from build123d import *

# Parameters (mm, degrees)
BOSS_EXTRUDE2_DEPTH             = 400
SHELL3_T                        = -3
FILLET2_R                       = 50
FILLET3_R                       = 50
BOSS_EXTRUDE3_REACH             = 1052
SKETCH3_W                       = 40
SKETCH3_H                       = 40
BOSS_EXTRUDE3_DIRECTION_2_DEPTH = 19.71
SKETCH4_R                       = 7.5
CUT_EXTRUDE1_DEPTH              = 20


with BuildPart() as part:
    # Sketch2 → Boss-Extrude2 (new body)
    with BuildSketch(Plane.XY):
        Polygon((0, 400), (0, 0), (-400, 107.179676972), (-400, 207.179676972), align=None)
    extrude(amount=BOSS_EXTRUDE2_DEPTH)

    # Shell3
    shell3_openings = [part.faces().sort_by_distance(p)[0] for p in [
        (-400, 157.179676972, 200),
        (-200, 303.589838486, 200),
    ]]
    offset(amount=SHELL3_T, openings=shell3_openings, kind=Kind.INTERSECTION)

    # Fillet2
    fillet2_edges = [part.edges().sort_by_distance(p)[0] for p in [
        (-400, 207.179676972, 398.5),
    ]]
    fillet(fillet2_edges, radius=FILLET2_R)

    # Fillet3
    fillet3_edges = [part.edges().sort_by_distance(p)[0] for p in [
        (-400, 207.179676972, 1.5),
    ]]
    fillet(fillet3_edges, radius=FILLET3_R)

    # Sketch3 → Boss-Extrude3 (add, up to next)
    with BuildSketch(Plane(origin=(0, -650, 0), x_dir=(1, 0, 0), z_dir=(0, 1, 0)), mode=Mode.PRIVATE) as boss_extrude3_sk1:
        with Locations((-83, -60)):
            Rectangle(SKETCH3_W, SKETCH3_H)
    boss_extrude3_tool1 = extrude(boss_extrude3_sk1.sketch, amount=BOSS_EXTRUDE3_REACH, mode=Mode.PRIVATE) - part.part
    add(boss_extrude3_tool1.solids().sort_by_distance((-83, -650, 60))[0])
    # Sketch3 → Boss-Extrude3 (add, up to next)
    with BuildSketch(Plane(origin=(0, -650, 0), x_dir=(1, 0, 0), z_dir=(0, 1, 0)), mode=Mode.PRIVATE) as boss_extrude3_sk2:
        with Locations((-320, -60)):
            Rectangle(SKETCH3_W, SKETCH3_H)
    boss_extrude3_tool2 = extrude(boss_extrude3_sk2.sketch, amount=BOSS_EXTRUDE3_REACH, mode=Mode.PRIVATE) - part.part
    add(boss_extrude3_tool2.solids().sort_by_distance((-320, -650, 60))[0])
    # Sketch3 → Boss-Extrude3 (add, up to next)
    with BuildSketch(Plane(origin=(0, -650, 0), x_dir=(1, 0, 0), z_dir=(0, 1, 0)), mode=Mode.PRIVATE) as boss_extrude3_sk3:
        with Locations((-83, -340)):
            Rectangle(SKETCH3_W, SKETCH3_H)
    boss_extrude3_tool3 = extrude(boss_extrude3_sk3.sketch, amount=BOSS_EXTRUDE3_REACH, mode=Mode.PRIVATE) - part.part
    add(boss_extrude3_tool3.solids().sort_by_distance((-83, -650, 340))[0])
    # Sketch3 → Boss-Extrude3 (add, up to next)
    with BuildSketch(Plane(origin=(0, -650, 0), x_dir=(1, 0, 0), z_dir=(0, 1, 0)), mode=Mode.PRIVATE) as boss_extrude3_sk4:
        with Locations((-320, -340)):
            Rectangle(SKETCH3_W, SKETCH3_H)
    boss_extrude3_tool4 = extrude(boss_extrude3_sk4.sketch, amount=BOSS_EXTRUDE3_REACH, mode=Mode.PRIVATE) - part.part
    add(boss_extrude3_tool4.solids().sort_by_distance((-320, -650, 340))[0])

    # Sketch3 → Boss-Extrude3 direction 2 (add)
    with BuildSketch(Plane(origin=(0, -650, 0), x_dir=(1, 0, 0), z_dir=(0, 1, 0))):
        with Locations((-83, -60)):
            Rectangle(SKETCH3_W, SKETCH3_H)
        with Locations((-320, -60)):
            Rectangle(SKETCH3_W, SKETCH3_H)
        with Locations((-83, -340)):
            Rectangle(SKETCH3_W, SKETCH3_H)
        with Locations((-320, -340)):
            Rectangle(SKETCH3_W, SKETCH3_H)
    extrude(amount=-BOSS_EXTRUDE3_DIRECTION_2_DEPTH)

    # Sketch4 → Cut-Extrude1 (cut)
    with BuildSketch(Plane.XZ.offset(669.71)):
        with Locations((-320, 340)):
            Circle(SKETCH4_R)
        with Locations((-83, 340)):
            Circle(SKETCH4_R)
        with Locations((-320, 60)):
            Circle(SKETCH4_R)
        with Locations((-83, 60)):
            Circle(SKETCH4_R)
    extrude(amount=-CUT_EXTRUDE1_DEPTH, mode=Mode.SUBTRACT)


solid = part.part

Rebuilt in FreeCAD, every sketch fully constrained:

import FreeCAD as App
import Part
import Sketcher
Q = App.Units.Quantity


def edges_at(feature, points):
    """Names of the edges that pass closest to the given points."""
    edges = feature.Shape.Edges
    near = lambda p: min(range(len(edges)), key=lambda i: edges[i].distToShape(Part.Vertex(*p))[0])
    return sorted({f"Edge{near(p) + 1}" for p in points})


def faces_at(feature, points):
    """Names of the faces that lie closest to the given points."""
    faces = feature.Shape.Faces
    near = lambda p: min(range(len(faces)), key=lambda i: faces[i].distToShape(Part.Vertex(*p))[0])
    return sorted({f"Face{near(p) + 1}" for p in points})

doc = App.newDocument("Part")
body = doc.addObject("PartDesign::Body", "Body")

# Sketch on XY plane
sketch1 = body.newObject("Sketcher::SketchObject", "Sketch")
sketch1.AttachmentSupport = (doc.getObject("XY_Plane"), [""])
sketch1.MapMode = "FlatFace"
sketch1.addGeometry([
    Part.LineSegment(App.Vector(0, 0, 0), App.Vector(0, 400, 0)),
    Part.LineSegment(App.Vector(0, 400, 0), App.Vector(-400, 207, 0)),
    Part.LineSegment(App.Vector(-400, 207, 0), App.Vector(-400, 107, 0)),
    Part.LineSegment(App.Vector(-400, 107, 0), App.Vector(0, 0, 0)),
], False)
sketch1.addConstraint([
    Sketcher.Constraint("Coincident", 0, 2, 1, 1),
    Sketcher.Constraint("Coincident", 1, 2, 2, 1),
    Sketcher.Constraint("Coincident", 2, 2, 3, 1),
    Sketcher.Constraint("Coincident", 3, 2, 0, 1),
    Sketcher.Constraint("Vertical", 0),
    Sketcher.Constraint("Vertical", 2),
    Sketcher.Constraint("Coincident", 3, 2, -1, 1),
    Sketcher.Constraint("DistanceY", 0, 1, 0, 2, Q("400 mm")),
    Sketcher.Constraint("DistanceY", 2, 2, 2, 1, Q("100 mm")),
    Sketcher.Constraint("Angle", 3, Q("-15 deg")),
    Sketcher.Constraint("DistanceX", 1, 2, -1, 1, Q("400 mm")),
])
pad1 = body.newObject("PartDesign::Pad", "Pad")
pad1.Profile = sketch1
pad1.Length = 400
doc.recompute()

thickness = body.newObject("PartDesign::Thickness", "Thickness")
thickness.Base = (pad1, faces_at(pad1, [(-400, 157.18, 200), (-200, 303.59, 200)]))
thickness.Value = 3
thickness.Reversed = True
thickness.Join = "Intersection"
doc.recompute()

fillet = body.newObject("PartDesign::Fillet", "Fillet")
fillet.Base = (thickness, edges_at(thickness, [(-400, 207.18, 398.5)]))
fillet.Radius = 50
doc.recompute()

fillet2 = body.newObject("PartDesign::Fillet", "Fillet001")
fillet2.Base = (fillet, edges_at(fillet, [(-400, 207.18, 1.5)]))
fillet2.Radius = 50

# Sketch on XZ plane
sketch2 = body.newObject("Sketcher::SketchObject", "Sketch001")
sketch2.AttachmentSupport = (doc.getObject("XZ_Plane"), [""])
sketch2.MapMode = "FlatFace"
sketch2.AttachmentOffset = App.Placement(App.Vector(0, 0, 650), App.Rotation())
sketch2.addGeometry([
    Part.LineSegment(App.Vector(-103, 40, 0), App.Vector(-103, 80, 0)),
    Part.LineSegment(App.Vector(-103, 80, 0), App.Vector(-63, 80, 0)),
    Part.LineSegment(App.Vector(-63, 80, 0), App.Vector(-63, 40, 0)),
    Part.LineSegment(App.Vector(-63, 40, 0), App.Vector(-103, 40, 0)),
], False)
sketch2.addConstraint([
    Sketcher.Constraint("Coincident", 0, 2, 1, 1),
    Sketcher.Constraint("Coincident", 1, 2, 2, 1),
    Sketcher.Constraint("Coincident", 2, 2, 3, 1),
    Sketcher.Constraint("Coincident", 3, 2, 0, 1),
    Sketcher.Constraint("Vertical", 0),
    Sketcher.Constraint("Horizontal", 1),
    Sketcher.Constraint("Vertical", 2),
    Sketcher.Constraint("Horizontal", 3),
    Sketcher.Constraint("Equal", 3, 0),
    Sketcher.Constraint("DistanceX", 1, 1, 1, 2, Q("40 mm")),
    Sketcher.Constraint("DistanceX", 0, 2, -1, 1, Q("103 mm")),
    Sketcher.Constraint("DistanceY", -1, 1, 0, 2, Q("80 mm")),
])
pad2 = body.newObject("PartDesign::Pad", "Pad001")
pad2.Profile = sketch2
pad2.Type = "UpToFirst"
pad2.Reversed = True

# Sketch on XZ plane
sketch3 = body.newObject("Sketcher::SketchObject", "Sketch002")
sketch3.AttachmentSupport = (doc.getObject("XZ_Plane"), [""])
sketch3.MapMode = "FlatFace"
sketch3.AttachmentOffset = App.Placement(App.Vector(0, 0, 650), App.Rotation())
sketch3.addGeometry([
    Part.LineSegment(App.Vector(-340, 40, 0), App.Vector(-340, 80, 0)),
    Part.LineSegment(App.Vector(-340, 80, 0), App.Vector(-300, 80, 0)),
    Part.LineSegment(App.Vector(-300, 80, 0), App.Vector(-300, 40, 0)),
    Part.LineSegment(App.Vector(-300, 40, 0), App.Vector(-340, 40, 0)),
], False)
sketch3.addConstraint([
    Sketcher.Constraint("Coincident", 0, 2, 1, 1),
    Sketcher.Constraint("Coincident", 1, 2, 2, 1),
    Sketcher.Constraint("Coincident", 2, 2, 3, 1),
    Sketcher.Constraint("Coincident", 3, 2, 0, 1),
    Sketcher.Constraint("Vertical", 0),
    Sketcher.Constraint("Horizontal", 1),
    Sketcher.Constraint("Vertical", 2),
    Sketcher.Constraint("Horizontal", 3),
    Sketcher.Constraint("Equal", 3, 0),
    Sketcher.Constraint("DistanceX", 1, 1, 1, 2, Q("40 mm")),
    Sketcher.Constraint("DistanceX", 0, 2, -1, 1, Q("340 mm")),
    Sketcher.Constraint("DistanceY", -1, 1, 0, 2, Q("80 mm")),
])
pad3 = body.newObject("PartDesign::Pad", "Pad002")
pad3.Profile = sketch3
pad3.Type = "UpToFirst"
pad3.Reversed = True

# Sketch on XZ plane
sketch4 = body.newObject("Sketcher::SketchObject", "Sketch003")
sketch4.AttachmentSupport = (doc.getObject("XZ_Plane"), [""])
sketch4.MapMode = "FlatFace"
sketch4.AttachmentOffset = App.Placement(App.Vector(0, 0, 650), App.Rotation())
sketch4.addGeometry([
    Part.LineSegment(App.Vector(-103, 320, 0), App.Vector(-103, 360, 0)),
    Part.LineSegment(App.Vector(-103, 360, 0), App.Vector(-63, 360, 0)),
    Part.LineSegment(App.Vector(-63, 360, 0), App.Vector(-63, 320, 0)),
    Part.LineSegment(App.Vector(-63, 320, 0), App.Vector(-103, 320, 0)),
], False)
sketch4.addConstraint([
    Sketcher.Constraint("Coincident", 0, 2, 1, 1),
    Sketcher.Constraint("Coincident", 1, 2, 2, 1),
    Sketcher.Constraint("Coincident", 2, 2, 3, 1),
    Sketcher.Constraint("Coincident", 3, 2, 0, 1),
    Sketcher.Constraint("Vertical", 0),
    Sketcher.Constraint("Horizontal", 1),
    Sketcher.Constraint("Vertical", 2),
    Sketcher.Constraint("Horizontal", 3),
    Sketcher.Constraint("Equal", 3, 0),
    Sketcher.Constraint("DistanceX", 1, 1, 1, 2, Q("40 mm")),
    Sketcher.Constraint("DistanceX", 0, 2, -1, 1, Q("103 mm")),
    Sketcher.Constraint("DistanceY", -1, 1, 0, 2, Q("360 mm")),
])
pad4 = body.newObject("PartDesign::Pad", "Pad003")
pad4.Profile = sketch4
pad4.Type = "UpToFirst"
pad4.Reversed = True

# Sketch on XZ plane
sketch5 = body.newObject("Sketcher::SketchObject", "Sketch004")
sketch5.AttachmentSupport = (doc.getObject("XZ_Plane"), [""])
sketch5.MapMode = "FlatFace"
sketch5.AttachmentOffset = App.Placement(App.Vector(0, 0, 650), App.Rotation())
sketch5.addGeometry([
    Part.LineSegment(App.Vector(-340, 320, 0), App.Vector(-340, 360, 0)),
    Part.LineSegment(App.Vector(-340, 360, 0), App.Vector(-300, 360, 0)),
    Part.LineSegment(App.Vector(-300, 360, 0), App.Vector(-300, 320, 0)),
    Part.LineSegment(App.Vector(-300, 320, 0), App.Vector(-340, 320, 0)),
], False)
sketch5.addConstraint([
    Sketcher.Constraint("Coincident", 0, 2, 1, 1),
    Sketcher.Constraint("Coincident", 1, 2, 2, 1),
    Sketcher.Constraint("Coincident", 2, 2, 3, 1),
    Sketcher.Constraint("Coincident", 3, 2, 0, 1),
    Sketcher.Constraint("Vertical", 0),
    Sketcher.Constraint("Horizontal", 1),
    Sketcher.Constraint("Vertical", 2),
    Sketcher.Constraint("Horizontal", 3),
    Sketcher.Constraint("Equal", 3, 0),
    Sketcher.Constraint("DistanceX", 1, 1, 1, 2, Q("40 mm")),
    Sketcher.Constraint("DistanceX", 0, 2, -1, 1, Q("340 mm")),
    Sketcher.Constraint("DistanceY", -1, 1, 0, 2, Q("360 mm")),
])
pad5 = body.newObject("PartDesign::Pad", "Pad004")
pad5.Profile = sketch5
pad5.Type = "UpToFirst"
pad5.Reversed = True

# Sketch on XZ plane
sketch6 = body.newObject("Sketcher::SketchObject", "Sketch005")
sketch6.AttachmentSupport = (doc.getObject("XZ_Plane"), [""])
sketch6.MapMode = "FlatFace"
sketch6.AttachmentOffset = App.Placement(App.Vector(0, 0, 650), App.Rotation())
sketch6.addGeometry([
    Part.LineSegment(App.Vector(-103, 40, 0), App.Vector(-103, 80, 0)),  # 0
    Part.LineSegment(App.Vector(-103, 80, 0), App.Vector(-63, 80, 0)),  # 1
    Part.LineSegment(App.Vector(-63, 80, 0), App.Vector(-63, 40, 0)),  # 2
    Part.LineSegment(App.Vector(-63, 40, 0), App.Vector(-103, 40, 0)),  # 3
    Part.LineSegment(App.Vector(-340, 40, 0), App.Vector(-340, 80, 0)),  # 4
    Part.LineSegment(App.Vector(-340, 80, 0), App.Vector(-300, 80, 0)),  # 5
    Part.LineSegment(App.Vector(-300, 80, 0), App.Vector(-300, 40, 0)),  # 6
    Part.LineSegment(App.Vector(-300, 40, 0), App.Vector(-340, 40, 0)),  # 7
    Part.LineSegment(App.Vector(-103, 320, 0), App.Vector(-103, 360, 0)),  # 8
    Part.LineSegment(App.Vector(-103, 360, 0), App.Vector(-63, 360, 0)),  # 9
    Part.LineSegment(App.Vector(-63, 360, 0), App.Vector(-63, 320, 0)),  # 10
    Part.LineSegment(App.Vector(-63, 320, 0), App.Vector(-103, 320, 0)),  # 11
    Part.LineSegment(App.Vector(-340, 320, 0), App.Vector(-340, 360, 0)),  # 12
    Part.LineSegment(App.Vector(-340, 360, 0), App.Vector(-300, 360, 0)),  # 13
    Part.LineSegment(App.Vector(-300, 360, 0), App.Vector(-300, 320, 0)),  # 14
    Part.LineSegment(App.Vector(-300, 320, 0), App.Vector(-340, 320, 0)),  # 15
], False)
sketch6.addConstraint([
    Sketcher.Constraint("Coincident", 0, 2, 1, 1),
    Sketcher.Constraint("Coincident", 1, 2, 2, 1),
    Sketcher.Constraint("Coincident", 2, 2, 3, 1),
    Sketcher.Constraint("Coincident", 3, 2, 0, 1),
    Sketcher.Constraint("Coincident", 4, 2, 5, 1),
    Sketcher.Constraint("Coincident", 5, 2, 6, 1),
    Sketcher.Constraint("Coincident", 6, 2, 7, 1),
    Sketcher.Constraint("Coincident", 7, 2, 4, 1),
    Sketcher.Constraint("Coincident", 8, 2, 9, 1),
    Sketcher.Constraint("Coincident", 9, 2, 10, 1),
    Sketcher.Constraint("Coincident", 10, 2, 11, 1),
    Sketcher.Constraint("Coincident", 11, 2, 8, 1),
    Sketcher.Constraint("Coincident", 12, 2, 13, 1),
    Sketcher.Constraint("Coincident", 13, 2, 14, 1),
    Sketcher.Constraint("Coincident", 14, 2, 15, 1),
    Sketcher.Constraint("Coincident", 15, 2, 12, 1),
    Sketcher.Constraint("Vertical", 0),
    Sketcher.Constraint("Horizontal", 1),
    Sketcher.Constraint("Vertical", 2),
    Sketcher.Constraint("Horizontal", 3),
    Sketcher.Constraint("Vertical", 4),
    Sketcher.Constraint("Horizontal", 5),
    Sketcher.Constraint("Vertical", 6),
    Sketcher.Constraint("Horizontal", 7),
    Sketcher.Constraint("Vertical", 8),
    Sketcher.Constraint("Horizontal", 9),
    Sketcher.Constraint("Vertical", 10),
    Sketcher.Constraint("Horizontal", 11),
    Sketcher.Constraint("Vertical", 12),
    Sketcher.Constraint("Horizontal", 13),
    Sketcher.Constraint("Vertical", 14),
    Sketcher.Constraint("Horizontal", 15),
    Sketcher.Constraint("Horizontal", 1, 2, 4, 2),
    Sketcher.Constraint("Horizontal", 3, 2, 6, 2),
    Sketcher.Constraint("Horizontal", 9, 2, 12, 2),
    Sketcher.Constraint("Horizontal", 11, 2, 14, 2),
    Sketcher.Constraint("Vertical", 3, 2, 8, 2),
    Sketcher.Constraint("Vertical", 2, 2, 9, 2),
    Sketcher.Constraint("Vertical", 7, 2, 12, 2),
    Sketcher.Constraint("Vertical", 6, 2, 13, 2),
    Sketcher.Constraint("Equal", 3, 5),
    Sketcher.Constraint("Equal", 15, 0),
    Sketcher.Constraint("Equal", 6, 8),
    Sketcher.Constraint("DistanceX", 1, 1, 1, 2, Q("40 mm")),
    Sketcher.Constraint("DistanceX", 0, 2, -1, 1, Q("103 mm")),
    Sketcher.Constraint("DistanceY", -1, 1, 0, 2, Q("80 mm")),
    Sketcher.Constraint("DistanceX", 4, 2, -1, 1, Q("340 mm")),
    Sketcher.Constraint("DistanceY", -1, 1, 8, 2, Q("360 mm")),
])
pad6 = body.newObject("PartDesign::Pad", "Pad005")
pad6.Profile = sketch6
pad6.Length = 19.71

# Sketch on XZ plane
sketch7 = body.newObject("Sketcher::SketchObject", "Sketch006")
sketch7.AttachmentSupport = (doc.getObject("XZ_Plane"), [""])
sketch7.MapMode = "FlatFace"
sketch7.AttachmentOffset = App.Placement(App.Vector(0, 0, 669.71), App.Rotation())
sketch7.addGeometry([
    Part.Circle(App.Vector(-320, 340, 0), App.Vector(0, 0, 1), 8),
    Part.Circle(App.Vector(-83, 340, 0), App.Vector(0, 0, 1), 8),
    Part.Circle(App.Vector(-320, 60, 0), App.Vector(0, 0, 1), 8),
    Part.Circle(App.Vector(-83, 60, 0), App.Vector(0, 0, 1), 8),
], False)
sketch7.addConstraint([
    Sketcher.Constraint("Equal", 0, 1),
    Sketcher.Constraint("Equal", 1, 2),
    Sketcher.Constraint("Equal", 2, 3),
    Sketcher.Constraint("Horizontal", 0, 3, 1, 3),
    Sketcher.Constraint("Horizontal", 2, 3, 3, 3),
    Sketcher.Constraint("Vertical", 0, 3, 2, 3),
    Sketcher.Constraint("Vertical", 1, 3, 3, 3),
    Sketcher.Constraint("Diameter", 0, Q("15 mm")),
    Sketcher.Constraint("DistanceX", 0, 3, -1, 1, Q("320 mm")),
    Sketcher.Constraint("DistanceY", -1, 1, 0, 3, Q("340 mm")),
    Sketcher.Constraint("DistanceX", 1, 3, -1, 1, Q("83 mm")),
    Sketcher.Constraint("DistanceY", -1, 1, 2, 3, Q("60 mm")),
])
pocket1 = body.newObject("PartDesign::Pocket", "Pocket")
pocket1.Profile = sketch7
pocket1.Length = 20

doc.recompute()
